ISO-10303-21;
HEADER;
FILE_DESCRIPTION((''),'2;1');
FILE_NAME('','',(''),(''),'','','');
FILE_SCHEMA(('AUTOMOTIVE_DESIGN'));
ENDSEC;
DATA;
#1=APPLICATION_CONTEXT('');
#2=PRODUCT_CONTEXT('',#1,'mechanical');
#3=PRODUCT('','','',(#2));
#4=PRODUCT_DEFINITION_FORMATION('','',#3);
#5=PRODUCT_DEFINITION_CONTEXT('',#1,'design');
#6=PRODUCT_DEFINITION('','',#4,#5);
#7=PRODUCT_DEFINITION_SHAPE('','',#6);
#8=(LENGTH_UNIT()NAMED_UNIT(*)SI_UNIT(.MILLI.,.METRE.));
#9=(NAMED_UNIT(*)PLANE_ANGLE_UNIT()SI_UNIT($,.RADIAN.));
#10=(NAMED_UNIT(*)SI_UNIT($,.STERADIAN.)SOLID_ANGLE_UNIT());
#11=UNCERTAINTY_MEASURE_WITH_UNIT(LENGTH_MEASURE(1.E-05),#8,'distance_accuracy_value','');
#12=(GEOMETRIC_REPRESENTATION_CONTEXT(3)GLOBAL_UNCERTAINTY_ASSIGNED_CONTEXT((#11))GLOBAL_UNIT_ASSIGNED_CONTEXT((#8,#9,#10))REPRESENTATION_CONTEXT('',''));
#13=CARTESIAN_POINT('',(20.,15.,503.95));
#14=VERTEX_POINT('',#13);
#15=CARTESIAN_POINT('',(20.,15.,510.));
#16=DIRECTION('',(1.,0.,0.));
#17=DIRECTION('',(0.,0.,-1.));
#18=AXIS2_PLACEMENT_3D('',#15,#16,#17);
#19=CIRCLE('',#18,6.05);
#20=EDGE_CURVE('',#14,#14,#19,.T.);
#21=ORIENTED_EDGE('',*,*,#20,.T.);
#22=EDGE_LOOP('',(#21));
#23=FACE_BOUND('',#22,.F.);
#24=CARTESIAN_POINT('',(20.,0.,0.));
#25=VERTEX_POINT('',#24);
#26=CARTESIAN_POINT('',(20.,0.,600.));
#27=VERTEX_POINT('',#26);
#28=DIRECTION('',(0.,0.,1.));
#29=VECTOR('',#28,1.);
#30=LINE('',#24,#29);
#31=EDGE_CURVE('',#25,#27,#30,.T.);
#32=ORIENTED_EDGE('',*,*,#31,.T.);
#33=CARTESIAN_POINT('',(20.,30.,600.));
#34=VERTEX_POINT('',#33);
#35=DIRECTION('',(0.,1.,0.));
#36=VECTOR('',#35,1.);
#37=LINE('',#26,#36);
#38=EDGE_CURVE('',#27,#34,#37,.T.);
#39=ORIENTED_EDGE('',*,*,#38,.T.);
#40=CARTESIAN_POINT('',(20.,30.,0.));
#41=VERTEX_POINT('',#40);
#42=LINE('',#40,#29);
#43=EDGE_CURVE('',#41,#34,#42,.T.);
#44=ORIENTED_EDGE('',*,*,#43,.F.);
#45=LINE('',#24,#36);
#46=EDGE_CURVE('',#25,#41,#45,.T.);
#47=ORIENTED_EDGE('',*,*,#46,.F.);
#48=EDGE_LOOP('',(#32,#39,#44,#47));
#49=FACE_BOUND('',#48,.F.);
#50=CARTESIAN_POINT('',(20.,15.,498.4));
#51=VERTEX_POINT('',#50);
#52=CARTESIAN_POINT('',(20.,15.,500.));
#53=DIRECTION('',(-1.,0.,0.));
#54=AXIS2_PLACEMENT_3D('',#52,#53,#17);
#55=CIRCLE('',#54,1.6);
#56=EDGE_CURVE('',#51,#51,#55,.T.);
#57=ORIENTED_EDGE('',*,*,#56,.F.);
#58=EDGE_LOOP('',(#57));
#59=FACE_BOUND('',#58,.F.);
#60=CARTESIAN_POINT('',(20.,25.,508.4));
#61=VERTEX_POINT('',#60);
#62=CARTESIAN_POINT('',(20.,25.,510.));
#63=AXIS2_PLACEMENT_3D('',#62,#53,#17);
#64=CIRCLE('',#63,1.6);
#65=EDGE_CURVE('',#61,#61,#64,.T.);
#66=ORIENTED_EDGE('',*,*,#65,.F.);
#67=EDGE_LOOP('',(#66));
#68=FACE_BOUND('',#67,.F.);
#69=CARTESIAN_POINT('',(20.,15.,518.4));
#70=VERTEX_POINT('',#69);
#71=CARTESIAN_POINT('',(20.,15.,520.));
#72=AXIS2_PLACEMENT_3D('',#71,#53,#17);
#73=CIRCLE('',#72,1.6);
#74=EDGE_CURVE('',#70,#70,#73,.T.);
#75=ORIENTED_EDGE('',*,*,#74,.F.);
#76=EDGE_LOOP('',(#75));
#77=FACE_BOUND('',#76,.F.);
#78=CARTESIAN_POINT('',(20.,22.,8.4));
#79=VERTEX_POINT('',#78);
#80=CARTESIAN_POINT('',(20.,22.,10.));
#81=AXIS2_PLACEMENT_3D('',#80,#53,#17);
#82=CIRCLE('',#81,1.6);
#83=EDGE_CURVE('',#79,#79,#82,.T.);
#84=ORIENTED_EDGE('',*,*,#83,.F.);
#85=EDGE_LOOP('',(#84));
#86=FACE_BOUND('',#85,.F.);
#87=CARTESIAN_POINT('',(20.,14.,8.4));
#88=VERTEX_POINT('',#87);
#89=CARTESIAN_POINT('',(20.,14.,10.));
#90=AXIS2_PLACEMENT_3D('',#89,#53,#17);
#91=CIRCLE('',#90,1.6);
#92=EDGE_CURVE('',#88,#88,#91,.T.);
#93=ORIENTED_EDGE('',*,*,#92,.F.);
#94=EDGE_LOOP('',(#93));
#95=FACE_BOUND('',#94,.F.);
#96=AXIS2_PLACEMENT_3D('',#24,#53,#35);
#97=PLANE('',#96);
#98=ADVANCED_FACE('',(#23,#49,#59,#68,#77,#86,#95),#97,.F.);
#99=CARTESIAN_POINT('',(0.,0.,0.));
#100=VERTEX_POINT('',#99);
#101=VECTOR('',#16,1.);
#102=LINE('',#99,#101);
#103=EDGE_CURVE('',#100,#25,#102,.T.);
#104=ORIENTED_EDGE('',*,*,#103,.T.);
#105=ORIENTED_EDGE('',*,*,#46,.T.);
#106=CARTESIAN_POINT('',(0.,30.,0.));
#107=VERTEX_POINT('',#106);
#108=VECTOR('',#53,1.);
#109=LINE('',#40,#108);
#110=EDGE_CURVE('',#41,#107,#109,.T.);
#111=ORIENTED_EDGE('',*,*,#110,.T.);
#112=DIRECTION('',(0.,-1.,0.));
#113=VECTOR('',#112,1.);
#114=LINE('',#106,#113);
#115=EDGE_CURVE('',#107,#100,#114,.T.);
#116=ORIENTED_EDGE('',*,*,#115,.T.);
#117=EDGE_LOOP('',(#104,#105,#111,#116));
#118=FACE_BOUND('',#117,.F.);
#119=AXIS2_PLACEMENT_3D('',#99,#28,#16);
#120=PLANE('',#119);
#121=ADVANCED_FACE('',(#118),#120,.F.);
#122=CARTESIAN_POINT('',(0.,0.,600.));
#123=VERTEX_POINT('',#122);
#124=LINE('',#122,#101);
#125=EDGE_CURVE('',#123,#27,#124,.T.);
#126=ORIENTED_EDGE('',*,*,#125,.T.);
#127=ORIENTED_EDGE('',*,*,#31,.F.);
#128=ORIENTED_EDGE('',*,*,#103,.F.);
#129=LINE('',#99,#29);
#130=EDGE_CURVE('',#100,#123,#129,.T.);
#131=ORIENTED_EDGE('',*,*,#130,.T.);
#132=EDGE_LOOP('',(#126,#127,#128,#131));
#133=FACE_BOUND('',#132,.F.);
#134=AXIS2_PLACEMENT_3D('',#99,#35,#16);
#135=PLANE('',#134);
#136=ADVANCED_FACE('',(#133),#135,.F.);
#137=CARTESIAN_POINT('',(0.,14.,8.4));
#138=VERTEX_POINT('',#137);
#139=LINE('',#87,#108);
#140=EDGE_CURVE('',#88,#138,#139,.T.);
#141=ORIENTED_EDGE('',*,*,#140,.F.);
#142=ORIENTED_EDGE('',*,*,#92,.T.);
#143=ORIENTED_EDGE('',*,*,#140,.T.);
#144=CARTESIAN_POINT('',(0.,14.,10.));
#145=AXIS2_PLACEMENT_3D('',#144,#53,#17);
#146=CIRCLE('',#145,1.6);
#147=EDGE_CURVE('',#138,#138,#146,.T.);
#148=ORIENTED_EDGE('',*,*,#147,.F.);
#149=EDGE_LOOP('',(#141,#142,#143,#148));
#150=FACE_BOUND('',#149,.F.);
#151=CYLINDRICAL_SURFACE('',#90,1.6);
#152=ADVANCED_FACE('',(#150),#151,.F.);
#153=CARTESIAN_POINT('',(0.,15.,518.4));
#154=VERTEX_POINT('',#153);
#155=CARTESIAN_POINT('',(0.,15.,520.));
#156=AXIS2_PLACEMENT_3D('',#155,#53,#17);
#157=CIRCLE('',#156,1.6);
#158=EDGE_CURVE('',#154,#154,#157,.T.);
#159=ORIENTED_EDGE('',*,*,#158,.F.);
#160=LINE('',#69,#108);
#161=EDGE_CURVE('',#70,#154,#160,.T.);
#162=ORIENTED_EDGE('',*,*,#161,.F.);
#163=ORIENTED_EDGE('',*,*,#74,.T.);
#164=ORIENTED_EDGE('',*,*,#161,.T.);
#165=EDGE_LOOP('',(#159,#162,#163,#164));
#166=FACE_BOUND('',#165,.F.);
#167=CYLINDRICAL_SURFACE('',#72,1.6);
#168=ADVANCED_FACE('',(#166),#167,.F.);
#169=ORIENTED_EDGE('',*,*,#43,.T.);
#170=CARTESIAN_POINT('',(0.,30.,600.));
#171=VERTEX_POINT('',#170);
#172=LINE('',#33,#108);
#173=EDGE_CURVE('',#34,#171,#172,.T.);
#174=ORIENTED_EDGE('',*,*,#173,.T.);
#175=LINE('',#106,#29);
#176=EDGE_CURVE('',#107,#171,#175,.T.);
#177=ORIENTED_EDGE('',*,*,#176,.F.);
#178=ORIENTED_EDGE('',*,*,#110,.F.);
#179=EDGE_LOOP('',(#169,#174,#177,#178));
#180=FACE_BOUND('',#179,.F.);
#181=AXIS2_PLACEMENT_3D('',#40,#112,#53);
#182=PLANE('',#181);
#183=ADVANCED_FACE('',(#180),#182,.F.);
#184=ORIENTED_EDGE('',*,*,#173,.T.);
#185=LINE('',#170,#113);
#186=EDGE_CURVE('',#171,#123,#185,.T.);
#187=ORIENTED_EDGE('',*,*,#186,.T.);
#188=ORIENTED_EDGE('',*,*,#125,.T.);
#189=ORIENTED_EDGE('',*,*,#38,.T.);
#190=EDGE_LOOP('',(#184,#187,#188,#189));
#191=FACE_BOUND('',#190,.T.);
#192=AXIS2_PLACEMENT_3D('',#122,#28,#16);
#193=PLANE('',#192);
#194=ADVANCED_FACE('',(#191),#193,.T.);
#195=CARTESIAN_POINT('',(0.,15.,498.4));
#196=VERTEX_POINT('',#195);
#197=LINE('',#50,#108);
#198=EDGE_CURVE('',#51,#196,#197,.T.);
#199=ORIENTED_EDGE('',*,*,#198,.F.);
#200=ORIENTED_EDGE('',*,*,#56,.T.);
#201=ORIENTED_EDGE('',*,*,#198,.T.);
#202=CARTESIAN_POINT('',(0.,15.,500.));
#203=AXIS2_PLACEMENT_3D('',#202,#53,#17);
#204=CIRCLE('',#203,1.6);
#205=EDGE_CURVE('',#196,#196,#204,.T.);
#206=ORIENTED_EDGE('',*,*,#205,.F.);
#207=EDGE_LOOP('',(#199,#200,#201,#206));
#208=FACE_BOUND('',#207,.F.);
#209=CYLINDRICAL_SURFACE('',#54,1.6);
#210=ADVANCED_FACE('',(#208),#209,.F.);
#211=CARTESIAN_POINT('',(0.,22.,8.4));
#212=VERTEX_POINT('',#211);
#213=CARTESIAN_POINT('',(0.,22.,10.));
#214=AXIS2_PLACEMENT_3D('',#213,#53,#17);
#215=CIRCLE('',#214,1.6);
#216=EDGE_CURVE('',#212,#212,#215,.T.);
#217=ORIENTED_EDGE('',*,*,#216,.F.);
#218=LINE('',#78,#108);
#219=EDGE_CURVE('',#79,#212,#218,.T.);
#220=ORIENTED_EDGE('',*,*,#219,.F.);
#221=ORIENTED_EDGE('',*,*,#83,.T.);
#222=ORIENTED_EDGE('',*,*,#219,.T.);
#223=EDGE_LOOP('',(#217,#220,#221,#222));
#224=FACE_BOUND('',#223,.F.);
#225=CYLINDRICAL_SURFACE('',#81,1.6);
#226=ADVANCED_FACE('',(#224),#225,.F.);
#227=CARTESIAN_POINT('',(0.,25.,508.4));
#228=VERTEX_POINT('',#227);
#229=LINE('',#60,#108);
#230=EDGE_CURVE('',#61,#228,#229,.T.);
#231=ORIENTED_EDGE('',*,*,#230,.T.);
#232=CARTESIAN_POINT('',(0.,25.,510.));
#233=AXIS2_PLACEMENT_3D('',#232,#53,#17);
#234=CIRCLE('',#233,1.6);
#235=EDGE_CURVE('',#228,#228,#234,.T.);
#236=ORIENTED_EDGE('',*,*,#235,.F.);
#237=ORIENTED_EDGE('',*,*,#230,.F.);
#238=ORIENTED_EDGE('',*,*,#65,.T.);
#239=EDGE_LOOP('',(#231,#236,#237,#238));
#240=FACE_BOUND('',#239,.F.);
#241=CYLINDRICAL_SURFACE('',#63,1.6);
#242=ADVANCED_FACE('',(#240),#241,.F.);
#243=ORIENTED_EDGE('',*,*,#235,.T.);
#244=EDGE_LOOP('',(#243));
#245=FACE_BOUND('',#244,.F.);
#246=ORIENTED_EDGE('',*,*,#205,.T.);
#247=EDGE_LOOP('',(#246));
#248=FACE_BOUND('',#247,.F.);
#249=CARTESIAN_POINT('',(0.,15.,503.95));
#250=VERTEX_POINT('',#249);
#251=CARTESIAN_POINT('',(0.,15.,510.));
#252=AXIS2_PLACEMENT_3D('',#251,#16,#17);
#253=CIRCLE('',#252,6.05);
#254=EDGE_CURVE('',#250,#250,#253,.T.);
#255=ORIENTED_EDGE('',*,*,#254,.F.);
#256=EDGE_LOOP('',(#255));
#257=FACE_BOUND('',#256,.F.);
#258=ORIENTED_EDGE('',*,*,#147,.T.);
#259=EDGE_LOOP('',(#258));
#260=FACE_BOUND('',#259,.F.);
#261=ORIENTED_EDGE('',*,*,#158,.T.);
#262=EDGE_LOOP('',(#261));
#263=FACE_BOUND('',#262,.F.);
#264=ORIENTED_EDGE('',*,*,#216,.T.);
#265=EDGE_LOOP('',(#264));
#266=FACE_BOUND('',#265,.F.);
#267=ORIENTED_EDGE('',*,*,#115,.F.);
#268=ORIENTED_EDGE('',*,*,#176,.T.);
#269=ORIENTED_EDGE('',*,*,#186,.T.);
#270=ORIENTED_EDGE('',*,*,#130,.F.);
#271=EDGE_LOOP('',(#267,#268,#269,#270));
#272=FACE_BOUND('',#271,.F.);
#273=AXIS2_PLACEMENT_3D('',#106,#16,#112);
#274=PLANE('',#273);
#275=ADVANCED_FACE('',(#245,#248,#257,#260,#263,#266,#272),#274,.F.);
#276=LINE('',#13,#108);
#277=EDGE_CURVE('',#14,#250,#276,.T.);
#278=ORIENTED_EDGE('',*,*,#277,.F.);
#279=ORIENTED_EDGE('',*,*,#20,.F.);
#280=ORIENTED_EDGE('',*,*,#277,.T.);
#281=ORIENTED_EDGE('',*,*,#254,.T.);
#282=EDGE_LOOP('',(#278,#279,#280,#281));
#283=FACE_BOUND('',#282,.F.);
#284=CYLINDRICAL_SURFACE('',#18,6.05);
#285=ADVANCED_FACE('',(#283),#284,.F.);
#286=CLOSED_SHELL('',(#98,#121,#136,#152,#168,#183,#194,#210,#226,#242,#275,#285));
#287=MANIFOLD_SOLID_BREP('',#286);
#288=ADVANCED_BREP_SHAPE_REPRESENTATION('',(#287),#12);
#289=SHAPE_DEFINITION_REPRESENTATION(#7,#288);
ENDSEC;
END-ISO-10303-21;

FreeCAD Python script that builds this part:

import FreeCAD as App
import Part
import Sketcher
from FreeCAD import Vector


def add_polygon(sketch, points):
    """Adds a closed chain of lines whose ends are joined by coincident constraints."""
    first, n = sketch.GeometryCount, len(points)
    for a, b in zip(points, points[1:] + points[:1]):
        sketch.addGeometry(Part.LineSegment(App.Vector(*a, 0), App.Vector(*b, 0)), False)
    for i in range(n):
        sketch.addConstraint(Sketcher.Constraint("Coincident", first + i, 2, first + (i + 1) % n, 1))

doc = App.newDocument("Part")
body = doc.addObject("PartDesign::Body", "Body")

# Sketch on XY plane
sketch1 = body.newObject("Sketcher::SketchObject", "Sketch")
sketch1.AttachmentSupport = (doc.getObject("XY_Plane"), [""])
sketch1.MapMode = "FlatFace"
add_polygon(sketch1, [(0, 30), (0, 0), (20, 0), (20, 30)])  # lines 0-3
sketch1.addConstraint(Sketcher.Constraint("Vertical", 0))
sketch1.addConstraint(Sketcher.Constraint("Horizontal", 1))
sketch1.addConstraint(Sketcher.Constraint("Vertical", 2))
sketch1.addConstraint(Sketcher.Constraint("Horizontal", 3))
sketch1.addConstraint(Sketcher.Constraint("Coincident", 0, 2, -1, 1))
sketch1.addConstraint(Sketcher.Constraint("DistanceX", 1, 1, 1, 2, 20.0))
sketch1.addConstraint(Sketcher.Constraint("DistanceY", 0, 2, 0, 1, 30.0))
pad1 = body.newObject("PartDesign::Pad", "Pad")
pad1.Profile = sketch1
pad1.Length = 600

# Sketch on YZ plane
sketch2 = body.newObject("Sketcher::SketchObject", "Sketch001")
sketch2.AttachmentSupport = (doc.getObject("YZ_Plane"), [""])
sketch2.MapMode = "FlatFace"
sketch2.AttachmentOffset = App.Placement(Vector(0, 0, 20), App.Rotation())
sketch2.addGeometry(Part.Circle(Vector(15, 510, 0), Vector(0, 0, 1), 6), False)
sketch2.addConstraint(Sketcher.Constraint("Diameter", 0, 12.1))
sketch2.addConstraint(Sketcher.Constraint("DistanceX", -1, 1, 0, 3, 15.0))
sketch2.addConstraint(Sketcher.Constraint("DistanceY", -1, 1, 0, 3, 510.0))
pocket1 = body.newObject("PartDesign::Pocket", "Pocket")
pocket1.Profile = sketch2
pocket1.Length = 600

# Sketch on YZ plane
sketch3 = body.newObject("Sketcher::SketchObject", "Sketch002")
sketch3.AttachmentSupport = (doc.getObject("YZ_Plane"), [""])
sketch3.MapMode = "FlatFace"
sketch3.AttachmentOffset = App.Placement(Vector(0, 0, 20), App.Rotation())
sketch3.addGeometry(Part.Circle(Vector(22, 10, 0), Vector(0, 0, 1), 1.6), False)
sketch3.addGeometry(Part.Circle(Vector(14, 10, 0), Vector(0, 0, 1), 1.6), False)
sketch3.addConstraint(Sketcher.Constraint("Equal", 0, 1))
sketch3.addConstraint(Sketcher.Constraint("Horizontal", 0, 3, 1, 3))
sketch3.addConstraint(Sketcher.Constraint("Diameter", 0, 3.2))
sketch3.addConstraint(Sketcher.Constraint("DistanceX", -1, 1, 0, 3, 22.0))
sketch3.addConstraint(Sketcher.Constraint("DistanceY", -1, 1, 0, 3, 10.0))
sketch3.addConstraint(Sketcher.Constraint("DistanceX", -1, 1, 1, 3, 14.0))
doc.recompute()
hole = body.newObject("PartDesign::Hole", "Hole")
hole.Profile = sketch3
hole.ThreadType = "None"
hole.Diameter = 3.2
hole.DepthType = "ThroughAll"

# Sketch on YZ plane
sketch4 = body.newObject("Sketcher::SketchObject", "Sketch003")
sketch4.AttachmentSupport = (doc.getObject("YZ_Plane"), [""])
sketch4.MapMode = "FlatFace"
sketch4.AttachmentOffset = App.Placement(Vector(0, 0, 20), App.Rotation())
sketch4.addGeometry(Part.Circle(Vector(15, 520, 0), Vector(0, 0, 1), 1.6), False)
sketch4.addGeometry(Part.Circle(Vector(15, 500, 0), Vector(0, 0, 1), 1.6), False)
sketch4.addGeometry(Part.Circle(Vector(25, 510, 0), Vector(0, 0, 1), 1.6), False)
sketch4.addConstraint(Sketcher.Constraint("Equal", 0, 1))
sketch4.addConstraint(Sketcher.Constraint("Equal", 1, 2))
sketch4.addConstraint(Sketcher.Constraint("Vertical", 0, 3, 1, 3))
sketch4.addConstraint(Sketcher.Constraint("Diameter", 0, 3.2))
sketch4.addConstraint(Sketcher.Constraint("DistanceX", -1, 1, 0, 3, 15.0))
sketch4.addConstraint(Sketcher.Constraint("DistanceY", -1, 1, 0, 3, 520.0))
sketch4.addConstraint(Sketcher.Constraint("DistanceY", -1, 1, 1, 3, 500.0))
sketch4.addConstraint(Sketcher.Constraint("DistanceX", -1, 1, 2, 3, 25.0))
sketch4.addConstraint(Sketcher.Constraint("DistanceY", -1, 1, 2, 3, 510.0))
doc.recompute()
hole2 = body.newObject("PartDesign::Hole", "Hole001")
hole2.Profile = sketch4
hole2.ThreadType = "None"
hole2.Diameter = 3.2
hole2.DepthType = "ThroughAll"

doc.recompute()
